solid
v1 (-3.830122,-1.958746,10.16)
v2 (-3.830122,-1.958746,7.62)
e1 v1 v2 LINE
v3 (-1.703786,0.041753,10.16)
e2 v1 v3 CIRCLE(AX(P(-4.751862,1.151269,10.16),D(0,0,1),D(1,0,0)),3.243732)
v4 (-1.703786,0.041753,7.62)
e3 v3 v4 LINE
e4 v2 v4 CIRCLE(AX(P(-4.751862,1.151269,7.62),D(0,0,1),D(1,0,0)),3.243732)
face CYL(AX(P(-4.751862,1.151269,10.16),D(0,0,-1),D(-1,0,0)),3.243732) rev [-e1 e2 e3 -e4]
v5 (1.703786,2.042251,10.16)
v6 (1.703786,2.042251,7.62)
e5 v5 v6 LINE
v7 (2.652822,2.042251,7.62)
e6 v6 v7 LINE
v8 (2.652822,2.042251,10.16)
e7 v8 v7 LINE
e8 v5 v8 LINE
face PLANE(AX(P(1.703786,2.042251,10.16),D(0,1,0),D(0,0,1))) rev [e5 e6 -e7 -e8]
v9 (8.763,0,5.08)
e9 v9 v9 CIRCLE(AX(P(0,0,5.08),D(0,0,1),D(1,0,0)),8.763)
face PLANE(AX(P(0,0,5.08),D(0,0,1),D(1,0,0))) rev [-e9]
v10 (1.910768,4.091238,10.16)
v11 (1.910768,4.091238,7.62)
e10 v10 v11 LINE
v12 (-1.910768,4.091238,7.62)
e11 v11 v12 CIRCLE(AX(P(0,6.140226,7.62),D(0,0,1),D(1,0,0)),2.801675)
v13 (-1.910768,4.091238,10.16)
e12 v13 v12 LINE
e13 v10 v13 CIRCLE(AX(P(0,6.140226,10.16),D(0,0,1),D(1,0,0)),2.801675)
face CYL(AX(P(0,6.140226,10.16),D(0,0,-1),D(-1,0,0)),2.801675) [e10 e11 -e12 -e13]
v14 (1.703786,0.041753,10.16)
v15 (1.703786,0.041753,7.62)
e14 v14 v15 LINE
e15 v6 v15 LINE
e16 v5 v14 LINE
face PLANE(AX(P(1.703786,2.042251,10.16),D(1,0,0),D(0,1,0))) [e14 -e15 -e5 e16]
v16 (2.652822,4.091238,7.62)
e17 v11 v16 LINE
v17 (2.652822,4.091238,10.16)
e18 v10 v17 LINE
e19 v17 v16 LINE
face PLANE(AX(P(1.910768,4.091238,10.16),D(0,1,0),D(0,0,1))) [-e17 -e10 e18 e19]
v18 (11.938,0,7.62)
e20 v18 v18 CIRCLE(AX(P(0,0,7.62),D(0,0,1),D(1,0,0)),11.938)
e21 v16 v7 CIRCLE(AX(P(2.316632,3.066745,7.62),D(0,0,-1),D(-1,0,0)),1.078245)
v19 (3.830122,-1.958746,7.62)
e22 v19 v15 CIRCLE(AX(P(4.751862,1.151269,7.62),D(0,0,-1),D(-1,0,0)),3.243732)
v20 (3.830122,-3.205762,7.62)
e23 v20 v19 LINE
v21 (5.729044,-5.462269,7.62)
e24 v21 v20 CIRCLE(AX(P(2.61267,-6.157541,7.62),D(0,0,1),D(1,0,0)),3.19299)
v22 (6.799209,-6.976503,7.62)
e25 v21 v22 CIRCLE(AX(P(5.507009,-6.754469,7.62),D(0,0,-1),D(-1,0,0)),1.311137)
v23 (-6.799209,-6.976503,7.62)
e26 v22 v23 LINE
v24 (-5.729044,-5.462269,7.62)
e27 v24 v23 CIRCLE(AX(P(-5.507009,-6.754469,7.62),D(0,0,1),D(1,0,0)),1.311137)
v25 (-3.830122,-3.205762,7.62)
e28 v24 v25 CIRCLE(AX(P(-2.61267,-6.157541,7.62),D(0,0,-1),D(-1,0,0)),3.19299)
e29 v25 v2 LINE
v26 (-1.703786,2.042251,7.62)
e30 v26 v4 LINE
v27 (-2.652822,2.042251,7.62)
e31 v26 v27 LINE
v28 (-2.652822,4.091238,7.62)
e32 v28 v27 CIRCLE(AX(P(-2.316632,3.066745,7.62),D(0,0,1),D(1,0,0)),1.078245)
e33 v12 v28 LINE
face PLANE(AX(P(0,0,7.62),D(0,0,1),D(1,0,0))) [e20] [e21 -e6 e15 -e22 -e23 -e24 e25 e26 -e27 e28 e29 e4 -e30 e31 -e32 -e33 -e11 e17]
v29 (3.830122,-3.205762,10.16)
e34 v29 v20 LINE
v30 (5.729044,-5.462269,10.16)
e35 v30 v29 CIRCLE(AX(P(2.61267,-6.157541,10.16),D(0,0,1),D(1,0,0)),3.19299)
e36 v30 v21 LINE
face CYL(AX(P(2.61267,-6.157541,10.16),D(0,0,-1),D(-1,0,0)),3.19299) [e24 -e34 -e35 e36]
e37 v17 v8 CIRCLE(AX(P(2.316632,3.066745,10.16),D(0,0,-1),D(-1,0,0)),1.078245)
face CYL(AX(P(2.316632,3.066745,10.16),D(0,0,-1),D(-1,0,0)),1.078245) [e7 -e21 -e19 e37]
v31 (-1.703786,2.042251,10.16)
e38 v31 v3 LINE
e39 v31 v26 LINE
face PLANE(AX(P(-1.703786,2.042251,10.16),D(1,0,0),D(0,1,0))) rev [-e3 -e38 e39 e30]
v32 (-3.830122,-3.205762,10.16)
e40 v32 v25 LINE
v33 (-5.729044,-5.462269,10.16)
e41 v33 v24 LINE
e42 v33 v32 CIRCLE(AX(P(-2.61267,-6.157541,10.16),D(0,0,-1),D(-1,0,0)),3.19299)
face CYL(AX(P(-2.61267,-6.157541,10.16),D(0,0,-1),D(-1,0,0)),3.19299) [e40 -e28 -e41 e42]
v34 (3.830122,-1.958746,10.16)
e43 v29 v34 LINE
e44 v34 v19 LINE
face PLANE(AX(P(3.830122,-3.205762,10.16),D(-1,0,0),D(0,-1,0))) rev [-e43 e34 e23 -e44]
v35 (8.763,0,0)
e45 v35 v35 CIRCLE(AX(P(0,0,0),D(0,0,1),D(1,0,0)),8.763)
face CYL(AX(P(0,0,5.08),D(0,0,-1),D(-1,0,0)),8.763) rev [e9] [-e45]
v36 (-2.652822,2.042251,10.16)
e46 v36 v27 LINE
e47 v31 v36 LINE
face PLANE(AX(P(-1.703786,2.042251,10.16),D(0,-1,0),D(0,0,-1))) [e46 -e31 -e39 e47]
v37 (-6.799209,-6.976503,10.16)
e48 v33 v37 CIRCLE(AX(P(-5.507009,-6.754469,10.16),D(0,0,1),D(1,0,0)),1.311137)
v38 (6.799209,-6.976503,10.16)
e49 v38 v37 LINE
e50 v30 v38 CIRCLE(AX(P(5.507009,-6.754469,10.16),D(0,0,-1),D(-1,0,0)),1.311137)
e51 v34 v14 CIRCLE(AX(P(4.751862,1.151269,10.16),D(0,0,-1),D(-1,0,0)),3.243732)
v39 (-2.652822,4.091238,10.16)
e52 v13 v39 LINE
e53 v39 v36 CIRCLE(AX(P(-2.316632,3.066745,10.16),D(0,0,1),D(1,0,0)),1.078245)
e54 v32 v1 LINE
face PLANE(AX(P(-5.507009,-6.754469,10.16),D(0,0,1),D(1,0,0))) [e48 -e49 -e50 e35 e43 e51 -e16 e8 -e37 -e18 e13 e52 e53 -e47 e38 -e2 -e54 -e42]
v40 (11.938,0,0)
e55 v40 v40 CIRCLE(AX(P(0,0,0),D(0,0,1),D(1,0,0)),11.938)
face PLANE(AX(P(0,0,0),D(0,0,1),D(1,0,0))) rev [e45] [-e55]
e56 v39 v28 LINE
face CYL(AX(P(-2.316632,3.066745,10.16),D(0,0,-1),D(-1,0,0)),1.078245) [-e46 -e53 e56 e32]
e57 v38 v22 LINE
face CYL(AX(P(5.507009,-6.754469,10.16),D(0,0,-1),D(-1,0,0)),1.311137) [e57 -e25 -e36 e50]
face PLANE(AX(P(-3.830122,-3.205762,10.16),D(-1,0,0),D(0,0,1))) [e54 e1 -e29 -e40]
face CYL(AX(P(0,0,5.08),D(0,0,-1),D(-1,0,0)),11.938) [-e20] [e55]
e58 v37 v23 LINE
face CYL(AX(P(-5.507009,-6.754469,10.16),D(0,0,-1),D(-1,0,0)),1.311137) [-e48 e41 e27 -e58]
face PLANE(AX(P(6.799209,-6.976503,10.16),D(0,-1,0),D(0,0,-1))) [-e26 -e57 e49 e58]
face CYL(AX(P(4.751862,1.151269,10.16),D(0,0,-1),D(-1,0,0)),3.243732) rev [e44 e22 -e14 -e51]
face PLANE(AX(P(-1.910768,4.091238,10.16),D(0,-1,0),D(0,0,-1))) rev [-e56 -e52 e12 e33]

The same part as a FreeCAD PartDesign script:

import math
import FreeCAD as App
import Part
import Sketcher

V = App.Vector
Q = App.Units.Quantity

doc = App.newDocument("Part")
body = doc.addObject("PartDesign::Body", "Body")

sketch1 = body.newObject("Sketcher::SketchObject", "Sketch")
sketch1.AttachmentSupport = (doc.getObject("XY_Plane"), [""])
sketch1.MapMode = "FlatFace"
sketch1.addGeometry(Part.Circle(V(0, 0, 0), V(0, 0, 1), 11.938), False)
sketch1.addGeometry(Part.Circle(V(0, 0, 0), V(0, 0, 1), 8.763), False)
sketch1.addConstraint(Sketcher.Constraint("Coincident", 0, 3, -1, 1))
sketch1.addConstraint(Sketcher.Constraint("Coincident", 1, 3, -1, 1))
sketch1.addConstraint(Sketcher.Constraint("Diameter", 0, Q("0.94 in")))
sketch1.addConstraint(Sketcher.Constraint("Diameter", 1, Q("0.69 in")))
pad1 = body.newObject("PartDesign::Pad", "Pad")
pad1.Profile = sketch1
pad1.Length = Q("0.2 in")

sketch2 = body.newObject("Sketcher::SketchObject", "Sketch001")
sketch2.AttachmentSupport = (doc.getObject("XY_Plane"), [""])
sketch2.MapMode = "FlatFace"
sketch2.AttachmentOffset = App.Placement(V(0, 0, 0.2 * 25.4), App.Rotation())
sketch2.addGeometry(Part.Circle(V(0, 0, 0), V(0, 0, 1), 11.938), False)
sketch2.addConstraint(Sketcher.Constraint("Coincident", 0, 3, -1, 1))
sketch2.addConstraint(Sketcher.Constraint("Diameter", 0, Q("0.94 in")))
pad2 = body.newObject("PartDesign::Pad", "Pad001")
pad2.Profile = sketch2
pad2.Length = Q("0.1 in")

sketch3 = body.newObject("Sketcher::SketchObject", "Sketch002")
sketch3.AttachmentSupport = (doc.getObject("XY_Plane"), [""])
sketch3.MapMode = "FlatFace"
sketch3.AttachmentOffset = App.Placement(V(0, 0, 0.3 * 25.4), App.Rotation())
sketch3.addGeometry(Part.LineSegment(V(-6.799209, -6.976503, 0), V(6.799209, -6.976503, 0)), False)
sketch3.addGeometry(Part.ArcOfCircle(Part.Circle(V(5.507009, -6.754469, 0), V(0, 0, 1), 1.311137), math.radians(-9.749733), math.radians(80.250267)), False)
sketch3.addGeometry(Part.ArcOfCircle(Part.Circle(V(2.61267, -6.157541, 0), V(0, 0, 1), 3.19299), math.radians(12.576894), math.radians(67.586453)), False)
sketch3.addGeometry(Part.LineSegment(V(3.830122, -3.205762, 0), V(3.830122, -1.958746, 0)), False)
sketch3.addGeometry(Part.ArcOfCircle(Part.Circle(V(4.751862, 1.151269, 0), V(0, 0, 1), 3.243732), math.radians(-159.998225), math.radians(-106.50866)), False)
sketch3.addGeometry(Part.LineSegment(V(1.703786, 0.041753, 0), V(1.703786, 2.042251, 0)), False)
sketch3.addGeometry(Part.LineSegment(V(1.703786, 2.042251, 0), V(2.652822, 2.042251, 0)), False)
sketch3.addGeometry(Part.ArcOfCircle(Part.Circle(V(2.316632, 3.066745, 0), V(0, 0, 1), 1.078245), math.radians(-71.832591), math.radians(71.832591)), False)
sketch3.addGeometry(Part.LineSegment(V(2.652822, 4.091238, 0), V(1.910768, 4.091238, 0)), False)
sketch3.addGeometry(Part.ArcOfCircle(Part.Circle(V(0, 6.140226, 0), V(0, 0, 1), 2.801675), math.radians(-46.999147), math.radians(226.999147)), False)
sketch3.addGeometry(Part.LineSegment(V(-1.910768, 4.091238, 0), V(-2.652822, 4.091238, 0)), False)
sketch3.addGeometry(Part.ArcOfCircle(Part.Circle(V(-2.316632, 3.066745, 0), V(0, 0, 1), 1.078245), math.radians(108.167409), math.radians(251.832591)), False)
sketch3.addGeometry(Part.LineSegment(V(-2.652822, 2.042251, 0), V(-1.703786, 2.042251, 0)), False)
sketch3.addGeometry(Part.LineSegment(V(-1.703786, 2.042251, 0), V(-1.703786, 0.041753, 0)), False)
sketch3.addGeometry(Part.ArcOfCircle(Part.Circle(V(-4.751862, 1.151269, 0), V(0, 0, 1), 3.243732), math.radians(-73.49134), math.radians(-20.001775)), False)
sketch3.addGeometry(Part.LineSegment(V(-3.830122, -1.958746, 0), V(-3.830122, -3.205762, 0)), False)
sketch3.addGeometry(Part.ArcOfCircle(Part.Circle(V(-2.61267, -6.157541, 0), V(0, 0, 1), 3.19299), math.radians(112.413547), math.radians(167.423106)), False)
sketch3.addGeometry(Part.ArcOfCircle(Part.Circle(V(-5.507009, -6.754469, 0), V(0, 0, 1), 1.311137), math.radians(99.749733), math.radians(189.749733)), False)
sketch3.addConstraint(Sketcher.Constraint("Coincident", 0, 2, 1, 1))
sketch3.addConstraint(Sketcher.Constraint("Coincident", 1, 2, 2, 1))
sketch3.addConstraint(Sketcher.Constraint("Coincident", 2, 2, 3, 1))
sketch3.addConstraint(Sketcher.Constraint("Coincident", 3, 2, 4, 2))
sketch3.addConstraint(Sketcher.Constraint("Coincident", 4, 1, 5, 1))
sketch3.addConstraint(Sketcher.Constraint("Coincident", 5, 2, 6, 1))
sketch3.addConstraint(Sketcher.Constraint("Coincident", 6, 2, 7, 1))
sketch3.addConstraint(Sketcher.Constraint("Coincident", 7, 2, 8, 1))
sketch3.addConstraint(Sketcher.Constraint("Coincident", 8, 2, 9, 1))
sketch3.addConstraint(Sketcher.Constraint("Coincident", 9, 2, 10, 1))
sketch3.addConstraint(Sketcher.Constraint("Coincident", 10, 2, 11, 1))
sketch3.addConstraint(Sketcher.Constraint("Coincident", 11, 2, 12, 1))
sketch3.addConstraint(Sketcher.Constraint("Coincident", 12, 2, 13, 1))
sketch3.addConstraint(Sketcher.Constraint("Coincident", 13, 2, 14, 2))
sketch3.addConstraint(Sketcher.Constraint("Coincident", 14, 1, 15, 1))
sketch3.addConstraint(Sketcher.Constraint("Coincident", 15, 2, 16, 1))
sketch3.addConstraint(Sketcher.Constraint("Coincident", 16, 2, 17, 1))
sketch3.addConstraint(Sketcher.Constraint("Coincident", 17, 2, 0, 1))
sketch3.addConstraint(Sketcher.Constraint("Horizontal", 0))
sketch3.addConstraint(Sketcher.Constraint("Vertical", 3))
sketch3.addConstraint(Sketcher.Constraint("Vertical", 5))
sketch3.addConstraint(Sketcher.Constraint("Horizontal", 6))
sketch3.addConstraint(Sketcher.Constraint("Horizontal", 8))
sketch3.addConstraint(Sketcher.Constraint("Horizontal", 10))
sketch3.addConstraint(Sketcher.Constraint("Horizontal", 12))
sketch3.addConstraint(Sketcher.Constraint("Vertical", 13))
sketch3.addConstraint(Sketcher.Constraint("Vertical", 15))
sketch3.addConstraint(Sketcher.Constraint("Equal", 7, 11))
sketch3.addConstraint(Sketcher.Constraint("Equal", 4, 14))
sketch3.addConstraint(Sketcher.Constraint("Equal", 2, 16))
sketch3.addConstraint(Sketcher.Constraint("Equal", 1, 17))
sketch3.addConstraint(Sketcher.Constraint("Symmetric", 7, 3, 11, 3, -2))
sketch3.addConstraint(Sketcher.Constraint("Symmetric", 4, 3, 14, 3, -2))
sketch3.addConstraint(Sketcher.Constraint("Symmetric", 2, 3, 16, 3, -2))
sketch3.addConstraint(Sketcher.Constraint("Symmetric", 1, 3, 17, 3, -2))
sketch3.addConstraint(Sketcher.Constraint("Symmetric", 8, 2, 9, 2, -2))
sketch3.addConstraint(Sketcher.Constraint("Symmetric", 5, 2, 12, 2, -2))
sketch3.addConstraint(Sketcher.Constraint("Horizontal", 3, 2, 14, 1))
sketch3.addConstraint(Sketcher.Constraint("Vertical", 6, 2, 7, 2))
sketch3.addConstraint(Sketcher.Constraint("Radius", 2, 3.19299))
sketch3.addConstraint(Sketcher.Constraint("Radius", 4, 3.243732))
sketch3.addConstraint(Sketcher.Constraint("DistanceY", 5, 1, 5, 2, 2.000499))
sketch3.addConstraint(Sketcher.Constraint("Radius", 1, 1.311137))
sketch3.addConstraint(Sketcher.Constraint("Radius", 7, 1.078245))
sketch3.addConstraint(Sketcher.Constraint("Radius", 9, 2.801675))
sketch3.addConstraint(Sketcher.Constraint("DistanceX", 0, 1, 0, 2, 13.598419))
sketch3.addConstraint(Sketcher.Constraint("DistanceX", 11, 3, 2, 3, 4.929302))
sketch3.addConstraint(Sketcher.Constraint("DistanceX", 1, 3, 0, 2, 1.2922))
sketch3.addConstraint(Sketcher.Constraint("DistanceY", 1, 3, 1, 2, 1.2922))
sketch3.addConstraint(Sketcher.Constraint("DistanceY", 3, 2, 4, 1, 2.000499))
sketch3.addConstraint(Sketcher.Constraint("DistanceX", 6, 2, 3, 2, 1.1773))
sketch3.addConstraint(Sketcher.Constraint("DistanceX", 6, 1, 6, 2, 0.949037))
sketch3.addConstraint(Sketcher.Constraint("DistanceX", 8, 2, 8, 1, 0.742054))
sketch3.addConstraint(Sketcher.Constraint("DistanceY", 3, 1, 3, 2, 1.247017))
sketch3.addConstraint(Sketcher.Constraint("DistanceY", 1, 3, -1, 1, 6.754469))
sketch3.addConstraint(Sketcher.Constraint("DistanceX", -1, 1, 2, 3, 2.61267))
sketch3.addConstraint(Sketcher.Constraint("DistanceX", -1, 1, 4, 3, 4.751862))
pad3 = body.newObject("PartDesign::Pad", "Pad002")
pad3.Profile = sketch3
pad3.Length = Q("0.1 in")

doc.recompute()
